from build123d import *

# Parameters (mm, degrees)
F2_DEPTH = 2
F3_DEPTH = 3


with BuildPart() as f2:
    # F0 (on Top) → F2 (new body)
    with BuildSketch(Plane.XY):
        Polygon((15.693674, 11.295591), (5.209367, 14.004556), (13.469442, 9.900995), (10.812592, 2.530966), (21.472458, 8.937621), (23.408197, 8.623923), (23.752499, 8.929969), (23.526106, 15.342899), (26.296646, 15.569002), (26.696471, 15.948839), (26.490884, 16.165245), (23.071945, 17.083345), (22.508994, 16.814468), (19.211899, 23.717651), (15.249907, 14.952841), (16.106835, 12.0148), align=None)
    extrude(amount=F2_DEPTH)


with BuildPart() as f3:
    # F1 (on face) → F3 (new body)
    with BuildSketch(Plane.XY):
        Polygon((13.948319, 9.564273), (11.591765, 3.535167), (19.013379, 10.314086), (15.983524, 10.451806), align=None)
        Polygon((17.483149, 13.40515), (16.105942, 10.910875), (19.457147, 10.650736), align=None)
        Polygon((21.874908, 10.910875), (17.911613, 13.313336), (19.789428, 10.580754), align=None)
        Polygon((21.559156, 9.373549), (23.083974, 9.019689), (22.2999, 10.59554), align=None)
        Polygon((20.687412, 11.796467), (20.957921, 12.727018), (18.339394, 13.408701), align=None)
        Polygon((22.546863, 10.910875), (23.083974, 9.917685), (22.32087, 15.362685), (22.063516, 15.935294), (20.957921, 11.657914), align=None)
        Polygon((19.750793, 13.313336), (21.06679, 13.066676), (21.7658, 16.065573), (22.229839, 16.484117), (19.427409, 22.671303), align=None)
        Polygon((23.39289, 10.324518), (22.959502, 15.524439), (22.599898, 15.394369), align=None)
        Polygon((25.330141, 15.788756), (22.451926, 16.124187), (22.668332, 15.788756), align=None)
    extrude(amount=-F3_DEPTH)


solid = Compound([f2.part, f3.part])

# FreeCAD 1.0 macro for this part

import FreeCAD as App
import Part
import Sketcher
from FreeCAD import Vector


def add_polygon(sketch, points):
    """Adds a closed chain of lines whose ends are joined by coincident constraints."""
    first, n = sketch.GeometryCount, len(points)
    for a, b in zip(points, points[1:] + points[:1]):
        sketch.addGeometry(Part.LineSegment(App.Vector(*a, 0), App.Vector(*b, 0)), False)
    for i in range(n):
        sketch.addConstraint(Sketcher.Constraint("Coincident", first + i, 2, first + (i + 1) % n, 1))

doc = App.newDocument("Part")
body = doc.addObject("PartDesign::Body", "Body")

sketch1 = body.newObject("Sketcher::SketchObject", "Sketch")
sketch1.AttachmentSupport = (doc.getObject("XY_Plane"), [""])
sketch1.MapMode = "FlatFace"
add_polygon(sketch1, [(15.69, 11.3), (5.21, 14), (13.47, 9.9), (10.81, 2.53), (21.47, 8.94), (23.41, 8.62), (23.75, 8.93), (23.53, 15.34), (26.3, 15.57), (26.7, 15.95), (26.49, 16.17), (23.07, 17.08), (22.51, 16.81), (19.21, 23.72), (15.25, 14.95), (16.11, 12.01)])
sketch1.addConstraint(Sketcher.Constraint("Perpendicular", 8, 9))
sketch1.addConstraint(Sketcher.Constraint("Perpendicular", 11, 12))
sketch1.addConstraint(Sketcher.Constraint("DistanceY", -1, 1, 7, 2, 15.569002))
sketch1.addConstraint(Sketcher.Constraint("DistanceX", -1, 1, 5, 2, 23.752499))
sketch1.addConstraint(Sketcher.Constraint("DistanceY", -1, 1, 6, 2, 15.342899))
sketch1.addConstraint(Sketcher.Constraint("DistanceX", -1, 1, 12, 2, 19.211899))
sketch1.addConstraint(Sketcher.Constraint("DistanceY", -1, 1, 14, 2, 12.0148))
sketch1.addConstraint(Sketcher.Constraint("DistanceY", 4, 2, 3, 2, 0.313698))
sketch1.addConstraint(Sketcher.Constraint("DistanceX", 4, 2, 5, 2, 0.344302))
sketch1.addConstraint(Sketcher.Constraint("DistanceY", 9, 2, 10, 2, 0.9181))
sketch1.addConstraint(Sketcher.Constraint("DistanceX", 10, 2, 7, 2, 3.224701))
sketch1.addConstraint(Sketcher.Constraint("DistanceX", 13, 2, 6, 2, 8.276199))
sketch1.addConstraint(Sketcher.Constraint("Distance", 0, 10.828628))
sketch1.addConstraint(Sketcher.Constraint("Distance", 3, 12.43696))
sketch1.addConstraint(Sketcher.Constraint("Distance", 5, 0.46066))
sketch1.addConstraint(Sketcher.Constraint("Distance", 7, 2.779751))
sketch1.addConstraint(Sketcher.Constraint("Distance", 12, 7.650148))
sketch1.addConstraint(Sketcher.Constraint("Distance", 14, 3.060459))
sketch1.addConstraint(Sketcher.Constraint("DistanceY", -1, 1, 3, 2, 8.937621))
sketch1.addConstraint(Sketcher.Constraint("DistanceX", -1, 1, 8, 2, 26.696471))
sketch1.addConstraint(Sketcher.Constraint("DistanceY", -1, 1, 8, 2, 15.948839))
sketch1.addConstraint(Sketcher.Constraint("DistanceY", -1, 1, 11, 2, 16.814468))
sketch1.addConstraint(Sketcher.Constraint("DistanceY", -1, 1, 12, 2, 23.717651))
sketch1.addConstraint(Sketcher.Constraint("DistanceY", -1, 1, 13, 2, 14.952841))
sketch1.addConstraint(Sketcher.Constraint("DistanceY", -1, 1, 15, 2, 11.295591))
sketch1.addConstraint(Sketcher.Constraint("DistanceY", 1, 2, 0, 2, 4.103561))
sketch1.addConstraint(Sketcher.Constraint("DistanceX", 2, 2, 1, 2, 2.65685))
sketch1.addConstraint(Sketcher.Constraint("DistanceY", 2, 2, 1, 2, 7.370029))
sketch1.addConstraint(Sketcher.Constraint("DistanceX", 0, 2, 3, 2, 16.263091))
sketch1.addConstraint(Sketcher.Constraint("DistanceX", 3, 2, 4, 2, 1.935739))
sketch1.addConstraint(Sketcher.Constraint("DistanceX", 4, 2, 6, 2, 0.117909))
sketch1.addConstraint(Sketcher.Constraint("DistanceX", 15, 2, 14, 2, 0.413161))
pad1 = body.newObject("PartDesign::Pad", "Pad")
pad1.Profile = sketch1
pad1.Length = 2
body2 = doc.addObject("PartDesign::Body", "Body001")
body2.AllowCompound = True

sketch2 = body2.newObject("Sketcher::SketchObject", "Sketch001")
sketch2.AttachmentSupport = (doc.getObject("XY_Plane001"), [""])
sketch2.MapMode = "FlatFace"
add_polygon(sketch2, [(13.95, 9.56), (11.59, 3.54), (19.01, 10.31), (15.98, 10.45)])
add_polygon(sketch2, [(17.48, 13.41), (16.11, 10.91), (19.46, 10.65)])
add_polygon(sketch2, [(21.87, 10.91), (17.91, 13.31), (19.79, 10.58)])
add_polygon(sketch2, [(21.56, 9.37), (23.08, 9.02), (22.3, 10.6)])
add_polygon(sketch2, [(20.69, 11.8), (20.96, 12.73), (18.34, 13.41)])
add_polygon(sketch2, [(22.55, 10.91), (23.08, 9.92), (22.32, 15.36), (22.06, 15.94), (20.96, 11.66)])
add_polygon(sketch2, [(19.75, 13.31), (21.07, 13.07), (21.77, 16.07), (22.23, 16.48), (19.43, 22.67)])
add_polygon(sketch2, [(23.39, 10.32), (22.96, 15.52), (22.6, 15.39)])
add_polygon(sketch2, [(25.33, 15.79), (22.45, 16.12), (22.67, 15.79)])
sketch2.addConstraint(Sketcher.Constraint("Horizontal", 31))
sketch2.addConstraint(Sketcher.Constraint("Perpendicular", 7, 12))
sketch2.addConstraint(Sketcher.Constraint("Horizontal", 4, 2, 9, 2))
sketch2.addConstraint(Sketcher.Constraint("Horizontal", 9, 2, 20, 2))
sketch2.addConstraint(Sketcher.Constraint("Horizontal", 7, 2, 25, 2))
sketch2.addConstraint(Sketcher.Constraint("Vertical", 10, 2, 16, 2))
sketch2.addConstraint(Sketcher.Constraint("Vertical", 13, 2, 19, 2))
sketch2.addConstraint(Sketcher.Constraint("Distance", 7, 4.634601))
sketch2.addConstraint(Sketcher.Constraint("Distance", 8, 3.315599))
sketch2.addConstraint(Sketcher.Constraint("DistanceX", 31, 1, 31, 2, 2.661809))
sketch2.addConstraint(Sketcher.Constraint("DistanceX", -1, 1, 11, 2, 22.2999))
sketch2.addConstraint(Sketcher.Constraint("DistanceY", -1, 1, 14, 2, 13.408701))
sketch2.addConstraint(Sketcher.Constraint("DistanceX", -1, 1, 22, 2, 21.7658))
sketch2.addConstraint(Sketcher.Constraint("DistanceY", 5, 2, 7, 2, 2.6626))
sketch2.addConstraint(Sketcher.Constraint("DistanceY", 9, 2, 21, 2, 2.155801))
sketch2.addConstraint(Sketcher.Constraint("DistanceY", 13, 2, 23, 2, 3.757099))
sketch2.addConstraint(Sketcher.Constraint("DistanceX", 14, 2, 25, 2, 1.411399))
sketch2.addConstraint(Sketcher.Constraint("DistanceX", 22, 2, 27, 2, 0.834098))
sketch2.addConstraint(Sketcher.Constraint("DistanceY", 17, 2, 29, 2, 0.761502))
sketch2.addConstraint(Sketcher.Constraint("Distance", 0, 6.473289))
sketch2.addConstraint(Sketcher.Constraint("Distance", 1, 10.051572))
sketch2.addConstraint(Sketcher.Constraint("Distance", 3, 2.220309))
sketch2.addConstraint(Sketcher.Constraint("Distance", 4, 2.849229))
sketch2.addConstraint(Sketcher.Constraint("Distance", 10, 1.565339))
sketch2.addConstraint(Sketcher.Constraint("Distance", 13, 0.969072))
sketch2.addConstraint(Sketcher.Constraint("Distance", 16, 1.129121))
sketch2.addConstraint(Sketcher.Constraint("Distance", 20, 1.755792))
sketch2.addConstraint(Sketcher.Constraint("Distance", 23, 0.624909))
sketch2.addConstraint(Sketcher.Constraint("Distance", 26, 5.21795))
sketch2.addConstraint(Sketcher.Constraint("Distance", 30, 0.399181))
sketch2.addConstraint(Sketcher.Constraint("DistanceX", -1, 1, 1, 2, 19.013379))
sketch2.addConstraint(Sketcher.Constraint("DistanceX", -1, 1, 3, 2, 13.948319))
sketch2.addConstraint(Sketcher.Constraint("DistanceX", -1, 1, 4, 2, 16.105942))
sketch2.addConstraint(Sketcher.Constraint("DistanceX", -1, 1, 6, 2, 17.483149))
sketch2.addConstraint(Sketcher.Constraint("DistanceY", -1, 1, 6, 2, 13.40515))
sketch2.addConstraint(Sketcher.Constraint("DistanceX", -1, 1, 8, 2, 19.789428))
sketch2.addConstraint(Sketcher.Constraint("DistanceX", -1, 1, 9, 2, 21.874908))
sketch2.addConstraint(Sketcher.Constraint("DistanceY", -1, 1, 10, 2, 9.019689))
sketch2.addConstraint(Sketcher.Constraint("DistanceY", -1, 1, 11, 2, 10.59554))
sketch2.addConstraint(Sketcher.Constraint("DistanceY", -1, 1, 12, 2, 9.373549))
sketch2.addConstraint(Sketcher.Constraint("DistanceX", -1, 1, 13, 2, 20.957921))
sketch2.addConstraint(Sketcher.Constraint("DistanceX", -1, 1, 15, 2, 20.687412))
sketch2.addConstraint(Sketcher.Constraint("DistanceX", -1, 1, 17, 2, 22.32087))
sketch2.addConstraint(Sketcher.Constraint("DistanceX", -1, 1, 21, 2, 21.06679))
sketch2.addConstraint(Sketcher.Constraint("DistanceX", -1, 1, 23, 2, 22.229839))
sketch2.addConstraint(Sketcher.Constraint("DistanceX", -1, 1, 24, 2, 19.427409))
sketch2.addConstraint(Sketcher.Constraint("DistanceY", -1, 1, 26, 2, 15.524439))
sketch2.addConstraint(Sketcher.Constraint("DistanceY", -1, 1, 27, 2, 15.394369))
sketch2.addConstraint(Sketcher.Constraint("DistanceX", -1, 1, 28, 2, 23.39289))
sketch2.addConstraint(Sketcher.Constraint("DistanceX", -1, 1, 30, 2, 22.668332))
sketch2.addConstraint(Sketcher.Constraint("DistanceY", 0, 2, 1, 2, 6.778919))
sketch2.addConstraint(Sketcher.Constraint("DistanceY", 1, 2, 2, 2, 0.13772))
sketch2.addConstraint(Sketcher.Constraint("DistanceY", 2, 2, 4, 2, 0.459069))
sketch2.addConstraint(Sketcher.Constraint("DistanceY", 1, 2, 5, 2, 0.33665))
sketch2.addConstraint(Sketcher.Constraint("DistanceX", 0, 2, 5, 2, 7.865382))
sketch2.addConstraint(Sketcher.Constraint("DistanceY", 5, 2, 13, 2, 2.076282))
sketch2.addConstraint(Sketcher.Constraint("DistanceX", 7, 2, 14, 2, 0.427781))
sketch2.addConstraint(Sketcher.Constraint("DistanceY", 16, 2, 9, 2, 0.99319))
sketch2.addConstraint(Sketcher.Constraint("DistanceY", 15, 2, 17, 2, 3.566218))
sketch2.addConstraint(Sketcher.Constraint("DistanceY", 17, 2, 18, 2, 0.572609))
sketch2.addConstraint(Sketcher.Constraint("DistanceY", 22, 2, 24, 2, 6.60573))
sketch2.addConstraint(Sketcher.Constraint("DistanceX", 21, 2, 26, 2, 1.892712))
sketch2.addConstraint(Sketcher.Constraint("DistanceX", 18, 2, 27, 2, 0.536382))
sketch2.addConstraint(Sketcher.Constraint("DistanceX", 18, 2, 29, 2, 0.38841))
pad2 = body2.newObject("PartDesign::Pad", "Pad001")
pad2.Profile = sketch2
pad2.Length = 3
pad2.Reversed = True

doc.recompute()
